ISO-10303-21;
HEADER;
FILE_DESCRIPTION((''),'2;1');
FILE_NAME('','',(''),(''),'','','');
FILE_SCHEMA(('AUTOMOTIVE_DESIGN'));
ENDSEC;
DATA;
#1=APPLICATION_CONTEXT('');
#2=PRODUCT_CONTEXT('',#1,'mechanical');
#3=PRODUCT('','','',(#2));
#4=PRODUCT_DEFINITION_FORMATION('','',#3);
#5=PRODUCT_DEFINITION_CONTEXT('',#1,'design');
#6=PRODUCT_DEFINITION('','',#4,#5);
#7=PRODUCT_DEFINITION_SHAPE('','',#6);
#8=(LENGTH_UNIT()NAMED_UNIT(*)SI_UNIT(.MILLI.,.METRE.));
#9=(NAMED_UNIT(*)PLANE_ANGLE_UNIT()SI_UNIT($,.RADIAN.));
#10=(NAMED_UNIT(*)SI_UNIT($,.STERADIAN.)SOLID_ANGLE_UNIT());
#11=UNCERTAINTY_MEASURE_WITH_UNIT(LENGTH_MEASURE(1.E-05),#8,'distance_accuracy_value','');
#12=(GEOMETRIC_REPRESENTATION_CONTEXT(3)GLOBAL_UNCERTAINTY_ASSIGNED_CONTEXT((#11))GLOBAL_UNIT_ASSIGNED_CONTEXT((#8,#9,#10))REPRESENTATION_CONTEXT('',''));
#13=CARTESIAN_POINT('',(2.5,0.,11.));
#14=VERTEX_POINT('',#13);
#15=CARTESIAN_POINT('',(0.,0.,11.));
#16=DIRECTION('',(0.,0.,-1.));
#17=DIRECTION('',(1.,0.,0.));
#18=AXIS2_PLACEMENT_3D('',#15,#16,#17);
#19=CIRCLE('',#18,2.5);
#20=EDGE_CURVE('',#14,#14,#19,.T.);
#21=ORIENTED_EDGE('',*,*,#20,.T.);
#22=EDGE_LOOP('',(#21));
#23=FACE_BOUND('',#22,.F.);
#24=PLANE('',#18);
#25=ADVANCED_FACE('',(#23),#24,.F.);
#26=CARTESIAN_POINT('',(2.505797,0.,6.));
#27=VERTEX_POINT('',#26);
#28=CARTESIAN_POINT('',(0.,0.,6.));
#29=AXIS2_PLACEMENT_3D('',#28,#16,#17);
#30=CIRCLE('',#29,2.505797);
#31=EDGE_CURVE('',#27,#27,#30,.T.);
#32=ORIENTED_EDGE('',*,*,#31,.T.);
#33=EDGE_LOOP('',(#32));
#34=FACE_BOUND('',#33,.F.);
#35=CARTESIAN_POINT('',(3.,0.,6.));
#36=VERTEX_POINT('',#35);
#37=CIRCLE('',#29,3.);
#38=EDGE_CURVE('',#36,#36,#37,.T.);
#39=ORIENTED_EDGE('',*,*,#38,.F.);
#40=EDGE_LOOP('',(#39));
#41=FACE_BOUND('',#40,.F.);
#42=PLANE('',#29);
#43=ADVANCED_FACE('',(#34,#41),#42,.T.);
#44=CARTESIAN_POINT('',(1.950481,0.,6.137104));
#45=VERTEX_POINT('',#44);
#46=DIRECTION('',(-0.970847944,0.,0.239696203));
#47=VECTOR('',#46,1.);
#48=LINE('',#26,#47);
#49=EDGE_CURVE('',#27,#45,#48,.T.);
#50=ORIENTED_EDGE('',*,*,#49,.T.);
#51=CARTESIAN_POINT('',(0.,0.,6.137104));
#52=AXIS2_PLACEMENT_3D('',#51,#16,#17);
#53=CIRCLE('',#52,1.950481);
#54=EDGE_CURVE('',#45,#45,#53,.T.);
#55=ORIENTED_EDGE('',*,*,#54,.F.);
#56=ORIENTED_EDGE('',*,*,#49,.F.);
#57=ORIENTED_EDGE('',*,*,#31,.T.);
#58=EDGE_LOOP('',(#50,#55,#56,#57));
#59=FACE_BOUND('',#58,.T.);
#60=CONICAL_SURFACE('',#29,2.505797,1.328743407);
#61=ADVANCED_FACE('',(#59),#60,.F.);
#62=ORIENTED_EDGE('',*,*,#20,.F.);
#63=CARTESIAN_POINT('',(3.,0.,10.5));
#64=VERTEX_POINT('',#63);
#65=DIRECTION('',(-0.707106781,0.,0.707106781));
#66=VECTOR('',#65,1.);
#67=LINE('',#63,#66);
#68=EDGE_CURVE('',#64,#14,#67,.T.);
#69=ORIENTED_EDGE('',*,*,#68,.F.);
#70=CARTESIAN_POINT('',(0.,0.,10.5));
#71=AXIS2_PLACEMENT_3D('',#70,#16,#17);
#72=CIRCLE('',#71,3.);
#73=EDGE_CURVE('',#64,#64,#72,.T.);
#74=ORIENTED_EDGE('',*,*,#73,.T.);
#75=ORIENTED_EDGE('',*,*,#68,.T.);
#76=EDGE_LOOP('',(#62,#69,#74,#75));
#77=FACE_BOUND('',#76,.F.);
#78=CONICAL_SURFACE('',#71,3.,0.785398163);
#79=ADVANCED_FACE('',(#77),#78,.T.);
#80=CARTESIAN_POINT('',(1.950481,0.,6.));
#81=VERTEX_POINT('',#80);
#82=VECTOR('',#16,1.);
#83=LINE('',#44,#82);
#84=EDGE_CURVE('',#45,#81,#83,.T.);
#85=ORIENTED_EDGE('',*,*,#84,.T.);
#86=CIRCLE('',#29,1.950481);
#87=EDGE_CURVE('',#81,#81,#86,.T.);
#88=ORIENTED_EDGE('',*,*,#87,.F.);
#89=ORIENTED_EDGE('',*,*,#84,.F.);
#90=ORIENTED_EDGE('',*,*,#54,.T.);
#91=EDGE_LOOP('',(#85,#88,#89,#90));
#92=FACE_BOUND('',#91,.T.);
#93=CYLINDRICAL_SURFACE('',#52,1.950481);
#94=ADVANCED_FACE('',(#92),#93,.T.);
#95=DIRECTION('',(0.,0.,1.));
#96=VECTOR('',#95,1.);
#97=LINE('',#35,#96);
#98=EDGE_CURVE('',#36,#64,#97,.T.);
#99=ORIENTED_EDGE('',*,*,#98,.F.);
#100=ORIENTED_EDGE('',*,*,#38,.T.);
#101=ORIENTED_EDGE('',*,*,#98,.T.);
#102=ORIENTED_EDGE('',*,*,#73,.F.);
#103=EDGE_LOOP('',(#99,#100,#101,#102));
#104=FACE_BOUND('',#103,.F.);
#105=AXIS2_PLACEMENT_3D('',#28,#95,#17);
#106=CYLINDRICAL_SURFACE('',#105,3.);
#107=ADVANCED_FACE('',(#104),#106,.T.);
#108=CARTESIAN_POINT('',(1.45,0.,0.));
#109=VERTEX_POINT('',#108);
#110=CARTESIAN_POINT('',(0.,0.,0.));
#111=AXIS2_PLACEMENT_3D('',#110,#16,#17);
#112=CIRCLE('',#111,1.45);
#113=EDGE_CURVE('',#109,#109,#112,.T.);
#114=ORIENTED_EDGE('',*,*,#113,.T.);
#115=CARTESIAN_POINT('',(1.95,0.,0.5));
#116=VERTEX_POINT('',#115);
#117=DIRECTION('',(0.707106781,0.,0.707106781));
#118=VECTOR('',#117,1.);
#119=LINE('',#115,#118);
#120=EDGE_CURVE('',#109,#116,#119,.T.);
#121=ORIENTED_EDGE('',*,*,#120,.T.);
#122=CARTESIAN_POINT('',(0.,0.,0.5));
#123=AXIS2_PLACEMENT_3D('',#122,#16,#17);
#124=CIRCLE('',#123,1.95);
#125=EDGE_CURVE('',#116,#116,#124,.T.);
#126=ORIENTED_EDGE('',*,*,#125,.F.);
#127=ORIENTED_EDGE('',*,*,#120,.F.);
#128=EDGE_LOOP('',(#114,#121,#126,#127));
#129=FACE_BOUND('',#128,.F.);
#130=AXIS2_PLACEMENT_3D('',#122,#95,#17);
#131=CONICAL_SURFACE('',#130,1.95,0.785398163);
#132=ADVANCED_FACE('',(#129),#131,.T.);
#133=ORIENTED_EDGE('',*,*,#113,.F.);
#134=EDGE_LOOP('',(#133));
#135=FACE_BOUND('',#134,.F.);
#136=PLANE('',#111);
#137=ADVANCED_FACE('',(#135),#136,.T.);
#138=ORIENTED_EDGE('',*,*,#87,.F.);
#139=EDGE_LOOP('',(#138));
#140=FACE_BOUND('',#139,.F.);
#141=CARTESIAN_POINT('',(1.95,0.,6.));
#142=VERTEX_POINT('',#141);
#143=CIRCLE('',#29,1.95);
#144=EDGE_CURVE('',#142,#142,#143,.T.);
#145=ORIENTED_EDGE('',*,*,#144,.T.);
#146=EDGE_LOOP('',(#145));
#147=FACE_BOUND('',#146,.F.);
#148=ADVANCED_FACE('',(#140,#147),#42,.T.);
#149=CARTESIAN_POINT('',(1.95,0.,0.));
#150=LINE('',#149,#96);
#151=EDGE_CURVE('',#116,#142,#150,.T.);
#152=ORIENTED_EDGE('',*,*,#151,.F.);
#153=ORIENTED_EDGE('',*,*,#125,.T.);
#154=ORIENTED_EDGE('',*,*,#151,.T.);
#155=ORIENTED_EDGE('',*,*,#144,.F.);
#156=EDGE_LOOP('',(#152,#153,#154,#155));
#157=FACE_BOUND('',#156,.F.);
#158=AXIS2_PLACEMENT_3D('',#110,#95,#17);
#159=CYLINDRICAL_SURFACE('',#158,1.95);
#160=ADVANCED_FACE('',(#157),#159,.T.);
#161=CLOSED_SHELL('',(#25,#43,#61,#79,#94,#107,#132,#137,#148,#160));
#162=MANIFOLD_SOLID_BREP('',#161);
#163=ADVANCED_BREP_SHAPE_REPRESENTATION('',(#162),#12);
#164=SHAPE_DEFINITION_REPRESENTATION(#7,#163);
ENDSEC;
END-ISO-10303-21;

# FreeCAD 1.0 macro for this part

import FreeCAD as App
import Part
import Sketcher
Q = App.Units.Quantity


def edges_at(feature, points):
    """Names of the edges that pass closest to the given points."""
    edges = feature.Shape.Edges
    near = lambda p: min(range(len(edges)), key=lambda i: edges[i].distToShape(Part.Vertex(*p))[0])
    return sorted({f"Edge{near(p) + 1}" for p in points})


def add_polygon(sketch, points):
    """Adds a closed chain of lines whose ends are joined by coincident constraints."""
    first, n = sketch.GeometryCount, len(points)
    for a, b in zip(points, points[1:] + points[:1]):
        sketch.addGeometry(Part.LineSegment(App.Vector(*a, 0), App.Vector(*b, 0)), False)
    for i in range(n):
        sketch.addConstraint(Sketcher.Constraint("Coincident", first + i, 2, first + (i + 1) % n, 1))

doc = App.newDocument("Part")
body = doc.addObject("PartDesign::Body", "Body")

# Sketch on XZ plane
sketch1 = doc.addObject("Sketcher::SketchObject", "Sketch")
body.addObject(sketch1)
sketch1.AttachmentSupport = (doc.XZ_Plane, [""])
sketch1.MapMode = "FlatFace"
add_polygon(sketch1, [(0, 0), (1.9, 0), (1.9, 6), (3, 6), (3, 11), (0, 11)])  # lines 0-5
sketch1.addConstraint(Sketcher.Constraint("Horizontal", 0))
sketch1.addConstraint(Sketcher.Constraint("Vertical", 1))
sketch1.addConstraint(Sketcher.Constraint("Horizontal", 2))
sketch1.addConstraint(Sketcher.Constraint("Vertical", 3))
sketch1.addConstraint(Sketcher.Constraint("Horizontal", 4))
sketch1.addConstraint(Sketcher.Constraint("Vertical", 5))
sketch1.addConstraint(Sketcher.Constraint("Coincident", 5, 2, -1, 1))
sketch1.addConstraint(Sketcher.Constraint("DistanceX", 4, 2, 4, 1, Q("3 mm")))
sketch1.addConstraint(Sketcher.Constraint("DistanceY", 1, 1, 1, 2, Q("6 mm")))
sketch1.addConstraint(Sketcher.Constraint("DistanceY", 3, 1, 3, 2, Q("5 mm")))
sketch1.addConstraint(Sketcher.Constraint("DistanceX", 0, 1, 0, 2, Q("1.95 mm")))
revolution = doc.addObject("PartDesign::Revolution", "Revolution")
body.addObject(revolution)
revolution.Profile = sketch1
revolution.ReferenceAxis = (sketch1, ["V_Axis"])
revolution.Angle = 360
doc.recompute()

chamfer = doc.addObject("PartDesign::Chamfer", "Chamfer")
body.addObject(chamfer)
chamfer.Base = (revolution, edges_at(revolution, [(-3, 0, 11), (-1.95, 0, 0)]))
chamfer.Size = 0.5

# Sketch on XZ plane
sketch2 = doc.addObject("Sketcher::SketchObject", "Sketch001")
body.addObject(sketch2)
sketch2.AttachmentSupport = (doc.XZ_Plane, [""])
sketch2.MapMode = "FlatFace"
add_polygon(sketch2, [(1.95, 6), (2.51, 6), (1.95, 6.14)])  # lines 0-2
sketch2.addConstraint(Sketcher.Constraint("Horizontal", 0))
sketch2.addConstraint(Sketcher.Constraint("Vertical", 2))
sketch2.addConstraint(Sketcher.Constraint("DistanceY", -1, 1, 0, 2, Q("6 mm")))
sketch2.addConstraint(Sketcher.Constraint("Distance", 1, Q("0.571991 mm")))
sketch2.addConstraint(Sketcher.Constraint("DistanceX", 0, 1, 0, 2, Q("0.555316 mm")))
sketch2.addConstraint(Sketcher.Constraint("DistanceX", -1, 1, 1, 2, Q("1.950481 mm")))
groove = doc.addObject("PartDesign::Groove", "Groove")
body.addObject(groove)
groove.Profile = sketch2
groove.ReferenceAxis = (sketch2, ["V_Axis"])
groove.Angle = 360

doc.recompute()
